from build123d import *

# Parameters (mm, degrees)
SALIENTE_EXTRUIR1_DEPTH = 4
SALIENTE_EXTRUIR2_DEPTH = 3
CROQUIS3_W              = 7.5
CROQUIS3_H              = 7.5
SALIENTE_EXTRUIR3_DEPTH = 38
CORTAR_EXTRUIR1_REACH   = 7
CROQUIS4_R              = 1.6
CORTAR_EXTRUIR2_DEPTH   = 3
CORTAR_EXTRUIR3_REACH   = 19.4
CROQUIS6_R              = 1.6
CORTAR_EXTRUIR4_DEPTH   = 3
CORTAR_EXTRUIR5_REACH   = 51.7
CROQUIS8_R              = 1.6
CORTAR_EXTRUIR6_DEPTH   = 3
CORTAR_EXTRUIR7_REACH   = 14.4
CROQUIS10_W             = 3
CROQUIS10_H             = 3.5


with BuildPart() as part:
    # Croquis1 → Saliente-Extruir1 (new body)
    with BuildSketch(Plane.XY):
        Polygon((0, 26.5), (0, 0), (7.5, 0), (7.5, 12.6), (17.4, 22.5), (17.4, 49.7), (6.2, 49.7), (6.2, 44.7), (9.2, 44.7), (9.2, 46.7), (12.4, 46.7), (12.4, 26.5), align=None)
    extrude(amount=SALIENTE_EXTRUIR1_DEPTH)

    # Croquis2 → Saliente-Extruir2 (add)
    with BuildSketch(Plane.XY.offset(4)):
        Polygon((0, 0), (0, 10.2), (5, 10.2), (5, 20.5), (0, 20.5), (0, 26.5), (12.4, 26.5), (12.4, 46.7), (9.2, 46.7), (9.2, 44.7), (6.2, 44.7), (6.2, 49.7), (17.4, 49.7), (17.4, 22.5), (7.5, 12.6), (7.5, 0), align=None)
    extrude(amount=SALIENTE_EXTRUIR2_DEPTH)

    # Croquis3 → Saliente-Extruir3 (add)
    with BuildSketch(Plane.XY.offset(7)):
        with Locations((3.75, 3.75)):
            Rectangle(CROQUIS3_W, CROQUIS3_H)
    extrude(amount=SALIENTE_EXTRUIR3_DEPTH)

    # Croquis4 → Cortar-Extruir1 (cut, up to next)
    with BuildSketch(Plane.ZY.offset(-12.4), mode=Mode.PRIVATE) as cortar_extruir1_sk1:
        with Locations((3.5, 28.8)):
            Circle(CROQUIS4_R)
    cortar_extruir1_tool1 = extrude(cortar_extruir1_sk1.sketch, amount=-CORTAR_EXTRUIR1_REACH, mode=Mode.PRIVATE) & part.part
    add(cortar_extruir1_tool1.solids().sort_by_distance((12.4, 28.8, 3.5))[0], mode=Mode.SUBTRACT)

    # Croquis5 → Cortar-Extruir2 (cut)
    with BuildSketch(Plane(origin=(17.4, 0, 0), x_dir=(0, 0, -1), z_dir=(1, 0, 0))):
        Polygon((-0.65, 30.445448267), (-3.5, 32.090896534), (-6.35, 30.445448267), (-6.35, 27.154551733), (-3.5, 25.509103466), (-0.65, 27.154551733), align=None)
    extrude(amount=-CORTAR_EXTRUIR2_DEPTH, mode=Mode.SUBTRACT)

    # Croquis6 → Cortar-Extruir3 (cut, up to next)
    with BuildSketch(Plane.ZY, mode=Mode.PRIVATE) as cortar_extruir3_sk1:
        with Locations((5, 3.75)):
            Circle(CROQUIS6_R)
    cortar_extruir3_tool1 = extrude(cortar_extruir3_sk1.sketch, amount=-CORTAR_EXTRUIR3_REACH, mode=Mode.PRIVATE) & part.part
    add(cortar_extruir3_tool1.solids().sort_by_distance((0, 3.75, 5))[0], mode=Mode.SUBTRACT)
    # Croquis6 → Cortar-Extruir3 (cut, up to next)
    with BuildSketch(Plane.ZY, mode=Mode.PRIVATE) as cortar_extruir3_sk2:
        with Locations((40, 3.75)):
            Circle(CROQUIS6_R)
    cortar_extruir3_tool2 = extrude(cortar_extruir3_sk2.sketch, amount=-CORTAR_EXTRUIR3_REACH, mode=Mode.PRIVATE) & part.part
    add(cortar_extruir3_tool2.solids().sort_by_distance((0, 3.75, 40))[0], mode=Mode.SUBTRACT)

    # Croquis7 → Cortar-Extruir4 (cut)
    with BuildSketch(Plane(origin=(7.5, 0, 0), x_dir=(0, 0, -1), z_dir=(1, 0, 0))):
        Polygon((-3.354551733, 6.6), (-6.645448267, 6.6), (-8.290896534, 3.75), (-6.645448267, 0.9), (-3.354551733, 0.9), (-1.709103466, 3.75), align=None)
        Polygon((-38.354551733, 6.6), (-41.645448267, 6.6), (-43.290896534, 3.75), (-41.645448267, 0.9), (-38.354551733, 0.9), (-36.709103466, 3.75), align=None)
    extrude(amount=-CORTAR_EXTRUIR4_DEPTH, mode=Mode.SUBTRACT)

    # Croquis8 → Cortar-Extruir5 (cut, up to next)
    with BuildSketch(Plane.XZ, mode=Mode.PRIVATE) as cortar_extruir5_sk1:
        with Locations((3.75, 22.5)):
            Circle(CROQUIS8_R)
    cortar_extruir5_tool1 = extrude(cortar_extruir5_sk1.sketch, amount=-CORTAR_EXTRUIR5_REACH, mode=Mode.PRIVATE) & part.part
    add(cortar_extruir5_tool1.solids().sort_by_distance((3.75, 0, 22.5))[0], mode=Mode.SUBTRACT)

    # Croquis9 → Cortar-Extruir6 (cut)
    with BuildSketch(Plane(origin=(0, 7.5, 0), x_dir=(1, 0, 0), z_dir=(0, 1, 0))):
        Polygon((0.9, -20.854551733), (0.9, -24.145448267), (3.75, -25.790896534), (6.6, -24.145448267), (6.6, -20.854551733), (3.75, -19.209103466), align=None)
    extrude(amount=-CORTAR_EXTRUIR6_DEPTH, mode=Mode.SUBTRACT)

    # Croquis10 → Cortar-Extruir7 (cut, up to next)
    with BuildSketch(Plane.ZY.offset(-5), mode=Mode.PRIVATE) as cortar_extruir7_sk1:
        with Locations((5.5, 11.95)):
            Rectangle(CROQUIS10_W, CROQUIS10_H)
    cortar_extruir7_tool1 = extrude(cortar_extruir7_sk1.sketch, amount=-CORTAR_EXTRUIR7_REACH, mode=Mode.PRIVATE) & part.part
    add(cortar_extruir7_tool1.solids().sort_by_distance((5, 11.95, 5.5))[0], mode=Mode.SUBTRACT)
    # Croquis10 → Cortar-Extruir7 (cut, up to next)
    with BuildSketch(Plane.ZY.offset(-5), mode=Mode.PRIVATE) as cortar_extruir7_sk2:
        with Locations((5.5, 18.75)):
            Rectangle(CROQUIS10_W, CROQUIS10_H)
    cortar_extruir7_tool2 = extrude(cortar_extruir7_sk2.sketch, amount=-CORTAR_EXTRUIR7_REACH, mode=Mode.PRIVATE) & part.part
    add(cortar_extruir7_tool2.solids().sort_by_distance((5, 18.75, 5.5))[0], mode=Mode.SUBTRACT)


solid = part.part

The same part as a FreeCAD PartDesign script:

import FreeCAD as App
import Part
import Sketcher

V = App.Vector
Q = App.Units.Quantity


def add_polygon(sketch, points):
    """Adds a closed chain of lines whose ends are joined by coincident constraints."""
    first, n = sketch.GeometryCount, len(points)
    for a, b in zip(points, points[1:] + points[:1]):
        sketch.addGeometry(Part.LineSegment(App.Vector(*a, 0), App.Vector(*b, 0)), False)
    for i in range(n):
        sketch.addConstraint(Sketcher.Constraint("Coincident", first + i, 2, first + (i + 1) % n, 1))

doc = App.newDocument("Part")
body = doc.addObject("PartDesign::Body", "Body")

# Sketch on XY plane
sketch1 = doc.addObject("Sketcher::SketchObject", "Sketch")
body.addObject(sketch1)
sketch1.AttachmentSupport = (doc.XY_Plane, [""])
sketch1.MapMode = "FlatFace"
add_polygon(sketch1, [(0, 26.5), (0, 0), (7.5, 0), (7.5, 12.6), (17.4, 22.5), (17.4, 49.7), (6.2, 49.7), (6.2, 44.7), (9.2, 44.7), (9.2, 46.7), (12.4, 46.7), (12.4, 26.5)])  # lines 0-11
sketch1.addConstraint([
    Sketcher.Constraint("Vertical", 0),
    Sketcher.Constraint("Horizontal", 1),
    Sketcher.Constraint("Vertical", 2),
    Sketcher.Constraint("Vertical", 4),
    Sketcher.Constraint("Horizontal", 5),
    Sketcher.Constraint("Vertical", 6),
    Sketcher.Constraint("Horizontal", 7),
    Sketcher.Constraint("Vertical", 8),
    Sketcher.Constraint("Horizontal", 9),
    Sketcher.Constraint("Vertical", 10),
    Sketcher.Constraint("Horizontal", 11),
    Sketcher.Constraint("Coincident", 0, 2, -1, 1),
    Sketcher.Constraint("DistanceX", 7, 1, 7, 2, 3.0),
    Sketcher.Constraint("DistanceY", 6, 2, 6, 1, 5.0),
    Sketcher.Constraint("DistanceY", 8, 1, 8, 2, 2.0),
    Sketcher.Constraint("Angle", 3, Q("45 deg")),
    Sketcher.Constraint("DistanceX", 1, 1, 1, 2, 7.5),
    Sketcher.Constraint("DistanceX", 5, 2, 5, 1, 11.2),
    Sketcher.Constraint("DistanceX", 9, 1, 9, 2, 3.2),
    Sketcher.Constraint("DistanceX", 11, 2, 11, 1, 12.4),
    Sketcher.Constraint("DistanceY", 0, 2, 0, 1, 26.5),
    Sketcher.Constraint("DistanceY", 2, 1, 2, 2, 12.6),
    Sketcher.Constraint("DistanceY", 4, 1, 4, 2, 27.2),
])
pad1 = doc.addObject("PartDesign::Pad", "Pad")
body.addObject(pad1)
pad1.Profile = sketch1
pad1.Length = 4

# Sketch on XY plane
sketch2 = doc.addObject("Sketcher::SketchObject", "Sketch001")
body.addObject(sketch2)
sketch2.AttachmentSupport = (doc.XY_Plane, [""])
sketch2.MapMode = "FlatFace"
sketch2.AttachmentOffset = App.Placement(V(0, 0, 4), App.Rotation())
add_polygon(sketch2, [(0, 10.2), (0, 0), (7.5, 0), (7.5, 12.6), (17.4, 22.5), (17.4, 49.7), (6.2, 49.7), (6.2, 44.7), (9.2, 44.7), (9.2, 46.7), (12.4, 46.7), (12.4, 26.5), (0, 26.5), (0, 20.5), (5, 20.5), (5, 10.2)])  # lines 0-15
sketch2.addConstraint([
    Sketcher.Constraint("Vertical", 0),
    Sketcher.Constraint("Horizontal", 1),
    Sketcher.Constraint("Vertical", 2),
    Sketcher.Constraint("Vertical", 4),
    Sketcher.Constraint("Horizontal", 5),
    Sketcher.Constraint("Vertical", 6),
    Sketcher.Constraint("Horizontal", 7),
    Sketcher.Constraint("Vertical", 8),
    Sketcher.Constraint("Horizontal", 9),
    Sketcher.Constraint("Vertical", 10),
    Sketcher.Constraint("Horizontal", 11),
    Sketcher.Constraint("Vertical", 12),
    Sketcher.Constraint("Horizontal", 13),
    Sketcher.Constraint("Vertical", 14),
    Sketcher.Constraint("Horizontal", 15),
    Sketcher.Constraint("Coincident", 0, 2, -1, 1),
    Sketcher.Constraint("PointOnObject", 11, 2, -2),
    Sketcher.Constraint("Equal", 15, 6),
    Sketcher.Constraint("DistanceX", 7, 1, 7, 2, 3.0),
    Sketcher.Constraint("DistanceX", 13, 1, 13, 2, 5.0),
    Sketcher.Constraint("DistanceY", 8, 1, 8, 2, 2.0),
    Sketcher.Constraint("DistanceY", 12, 2, 12, 1, 6.0),
    Sketcher.Constraint("Angle", 3, Q("45 deg")),
    Sketcher.Constraint("DistanceX", 1, 1, 1, 2, 7.5),
    Sketcher.Constraint("DistanceX", 5, 2, 5, 1, 11.2),
    Sketcher.Constraint("DistanceX", 9, 1, 9, 2, 3.2),
    Sketcher.Constraint("DistanceX", 11, 2, 11, 1, 12.4),
    Sketcher.Constraint("DistanceY", 0, 2, 0, 1, 10.2),
    Sketcher.Constraint("DistanceY", 2, 1, 2, 2, 12.6),
    Sketcher.Constraint("DistanceY", 4, 1, 4, 2, 27.2),
    Sketcher.Constraint("DistanceY", 10, 2, 10, 1, 20.2),
])
pad2 = doc.addObject("PartDesign::Pad", "Pad001")
body.addObject(pad2)
pad2.Profile = sketch2
pad2.Length = 3

# Sketch on XY plane
sketch3 = doc.addObject("Sketcher::SketchObject", "Sketch002")
body.addObject(sketch3)
sketch3.AttachmentSupport = (doc.XY_Plane, [""])
sketch3.MapMode = "FlatFace"
sketch3.AttachmentOffset = App.Placement(V(0, 0, 7), App.Rotation())
add_polygon(sketch3, [(0, 8), (0, 0), (8, 0), (8, 8)])  # lines 0-3
sketch3.addConstraint([
    Sketcher.Constraint("Vertical", 0),
    Sketcher.Constraint("Horizontal", 1),
    Sketcher.Constraint("Vertical", 2),
    Sketcher.Constraint("Horizontal", 3),
    Sketcher.Constraint("Coincident", 0, 2, -1, 1),
    Sketcher.Constraint("Equal", 3, 0),
    Sketcher.Constraint("DistanceX", 1, 1, 1, 2, 7.5),
])
pad3 = doc.addObject("PartDesign::Pad", "Pad002")
body.addObject(pad3)
pad3.Profile = sketch3
pad3.Length = 38

# Sketch on YZ plane
sketch4 = doc.addObject("Sketcher::SketchObject", "Sketch003")
body.addObject(sketch4)
sketch4.AttachmentSupport = (doc.YZ_Plane, [""])
sketch4.MapMode = "FlatFace"
sketch4.AttachmentOffset = App.Placement(V(0, 0, 12.4), App.Rotation())
sketch4.addGeometry(Part.Circle(V(28.8, 3.5, 0), V(0, 0, 1), 1.6), False)
sketch4.addConstraint([
    Sketcher.Constraint("Diameter", 0, 3.2),
    Sketcher.Constraint("DistanceX", -1, 1, 0, 3, 28.8),
    Sketcher.Constraint("DistanceY", -1, 1, 0, 3, 3.5),
])
pocket1 = doc.addObject("PartDesign::Pocket", "Pocket")
body.addObject(pocket1)
pocket1.Profile = sketch4
pocket1.Type = "UpToFirst"
pocket1.Reversed = True

# Sketch on YZ plane
sketch5 = doc.addObject("Sketcher::SketchObject", "Sketch004")
body.addObject(sketch5)
sketch5.AttachmentSupport = (doc.YZ_Plane, [""])
sketch5.MapMode = "FlatFace"
sketch5.AttachmentOffset = App.Placement(V(0, 0, 17.4), App.Rotation())
add_polygon(sketch5, [(30.4, 0.7), (32.1, 3.5), (30.4, 6.3), (27.2, 6.3), (25.5, 3.5), (27.2, 0.7)])  # lines 0-5
sketch5.addConstraint([
    Sketcher.Constraint("Horizontal", 2),
    Sketcher.Constraint("Horizontal", 5),
    Sketcher.Constraint("Parallel", 0, 3),
    Sketcher.Constraint("Parallel", 1, 4),
    Sketcher.Constraint("Horizontal", 0, 2, 3, 2),
    Sketcher.Constraint("Vertical", 2, 2, 4, 2),
    Sketcher.Constraint("Vertical", 1, 2, 5, 2),
    Sketcher.Constraint("Angle", 0, Q("60 deg")),
    Sketcher.Constraint("DistanceY", -1, 1, 0, 2, 3.5),
    Sketcher.Constraint("DistanceY", 4, 2, 2, 2, 5.7),
    Sketcher.Constraint("DistanceX", 2, 2, 2, 1, 3.290897),
    Sketcher.Constraint("DistanceX", -1, 1, 1, 2, 30.445448),
])
pocket2 = doc.addObject("PartDesign::Pocket", "Pocket001")
body.addObject(pocket2)
pocket2.Profile = sketch5
pocket2.Length = 3

# Sketch on YZ plane
sketch6 = doc.addObject("Sketcher::SketchObject", "Sketch005")
body.addObject(sketch6)
sketch6.AttachmentSupport = (doc.YZ_Plane, [""])
sketch6.MapMode = "FlatFace"
sketch6.addGeometry(Part.Circle(V(3.8, 5, 0), V(0, 0, 1), 1.6), False)
sketch6.addConstraint([
    Sketcher.Constraint("Diameter", 0, 3.2),
    Sketcher.Constraint("DistanceY", -1, 1, 0, 3, 5.0),
    Sketcher.Constraint("DistanceX", -1, 1, 0, 3, 3.75),
])
pocket3 = doc.addObject("PartDesign::Pocket", "Pocket002")
body.addObject(pocket3)
pocket3.Profile = sketch6
pocket3.Type = "UpToFirst"
pocket3.Reversed = True

# Sketch on YZ plane
sketch7 = doc.addObject("Sketcher::SketchObject", "Sketch006")
body.addObject(sketch7)
sketch7.AttachmentSupport = (doc.YZ_Plane, [""])
sketch7.MapMode = "FlatFace"
sketch7.addGeometry(Part.Circle(V(3.8, 40, 0), V(0, 0, 1), 1.6), False)
sketch7.addConstraint([
    Sketcher.Constraint("Diameter", 0, 3.2),
    Sketcher.Constraint("DistanceY", -1, 1, 0, 3, 40.0),
    Sketcher.Constraint("DistanceX", -1, 1, 0, 3, 3.75),
])
pocket4 = doc.addObject("PartDesign::Pocket", "Pocket003")
body.addObject(pocket4)
pocket4.Profile = sketch7
pocket4.Type = "UpToFirst"
pocket4.Reversed = True

# Sketch on YZ plane
sketch8 = doc.addObject("Sketcher::SketchObject", "Sketch007")
body.addObject(sketch8)
sketch8.AttachmentSupport = (doc.YZ_Plane, [""])
sketch8.MapMode = "FlatFace"
sketch8.AttachmentOffset = App.Placement(V(0, 0, 7.5), App.Rotation())
add_polygon(sketch8, [(6.6, 3.4), (6.6, 6.6), (3.8, 8.3), (0.9, 6.6), (0.9, 3.4), (3.8, 1.7)])  # lines 0-5
add_polygon(sketch8, [(6.6, 38.4), (6.6, 41.6), (3.8, 43.3), (0.9, 41.6), (0.9, 38.4), (3.8, 36.7)])  # lines 6-11
sketch8.addConstraint([
    Sketcher.Constraint("Vertical", 0),
    Sketcher.Constraint("Vertical", 3),
    Sketcher.Constraint("Vertical", 6),
    Sketcher.Constraint("Vertical", 9),
    Sketcher.Constraint("Parallel", 1, 4),
    Sketcher.Constraint("Parallel", 2, 5),
    Sketcher.Constraint("Parallel", 4, 7),
    Sketcher.Constraint("Parallel", 5, 8),
    Sketcher.Constraint("Parallel", 7, 10),
    Sketcher.Constraint("Parallel", 8, 11),
    Sketcher.Constraint("Horizontal", 0, 2, 2, 2),
    Sketcher.Constraint("Horizontal", 3, 2, 5, 2),
    Sketcher.Constraint("Horizontal", 6, 2, 8, 2),
    Sketcher.Constraint("Horizontal", 9, 2, 11, 2),
    Sketcher.Constraint("Vertical", 1, 2, 4, 2),
    Sketcher.Constraint("Vertical", 5, 2, 6, 2),
    Sketcher.Constraint("Vertical", 4, 2, 7, 2),
    Sketcher.Constraint("Equal", 3, 6),
    Sketcher.Constraint("Angle", 1, Q("150 deg")),
    Sketcher.Constraint("DistanceY", 0, 2, 6, 2, 35.0),
    Sketcher.Constraint("DistanceX", -1, 1, 0, 2, 6.6),
    Sketcher.Constraint("DistanceX", -1, 1, 2, 2, 0.9),
    Sketcher.Constraint("DistanceY", 0, 1, 0, 2, 3.290897),
    Sketcher.Constraint("DistanceY", -1, 1, 0, 2, 6.645448),
])
pocket5 = doc.addObject("PartDesign::Pocket", "Pocket004")
body.addObject(pocket5)
pocket5.Profile = sketch8
pocket5.Length = 3

# Sketch on XZ plane
sketch9 = doc.addObject("Sketcher::SketchObject", "Sketch008")
body.addObject(sketch9)
sketch9.AttachmentSupport = (doc.XZ_Plane, [""])
sketch9.MapMode = "FlatFace"
sketch9.addGeometry(Part.Circle(V(3.8, 22.5, 0), V(0, 0, 1), 1.6), False)
sketch9.addConstraint([
    Sketcher.Constraint("Diameter", 0, 3.2),
    Sketcher.Constraint("DistanceY", -1, 1, 0, 3, 22.5),
    Sketcher.Constraint("DistanceX", -1, 1, 0, 3, 3.75),
])
pocket6 = doc.addObject("PartDesign::Pocket", "Pocket005")
body.addObject(pocket6)
pocket6.Profile = sketch9
pocket6.Type = "UpToFirst"

# Sketch on XZ plane
sketch10 = doc.addObject("Sketcher::SketchObject", "Sketch009")
body.addObject(sketch10)
sketch10.AttachmentSupport = (doc.XZ_Plane, [""])
sketch10.MapMode = "FlatFace"
sketch10.AttachmentOffset = App.Placement(V(0, 0, -7.5), App.Rotation())
add_polygon(sketch10, [(0.9, 20.9), (0.9, 24.1), (3.8, 25.8), (6.6, 24.1), (6.6, 20.9), (3.8, 19.2)])  # lines 0-5
sketch10.addConstraint([
    Sketcher.Constraint("Vertical", 0),
    Sketcher.Constraint("Vertical", 3),
    Sketcher.Constraint("Parallel", 1, 4),
    Sketcher.Constraint("Parallel", 2, 5),
    Sketcher.Constraint("Horizontal", 0, 2, 2, 2),
    Sketcher.Constraint("Horizontal", 3, 2, 5, 2),
    Sketcher.Constraint("Vertical", 1, 2, 4, 2),
    Sketcher.Constraint("Angle", 1, Q("30 deg")),
    Sketcher.Constraint("DistanceX", -1, 1, 0, 2, 0.9),
    Sketcher.Constraint("DistanceX", -1, 1, 2, 2, 6.6),
    Sketcher.Constraint("DistanceY", 0, 1, 0, 2, 3.290897),
    Sketcher.Constraint("DistanceY", -1, 1, 0, 2, 24.145448),
])
pocket7 = doc.addObject("PartDesign::Pocket", "Pocket006")
body.addObject(pocket7)
pocket7.Profile = sketch10
pocket7.Length = 3
pocket7.Reversed = True

# Sketch on YZ plane
sketch11 = doc.addObject("Sketcher::SketchObject", "Sketch010")
body.addObject(sketch11)
sketch11.AttachmentSupport = (doc.YZ_Plane, [""])
sketch11.MapMode = "FlatFace"
sketch11.AttachmentOffset = App.Placement(V(0, 0, 5), App.Rotation())
add_polygon(sketch11, [(13.7, 4), (10.2, 4), (10.2, 7), (13.7, 7)])  # lines 0-3
sketch11.addConstraint([
    Sketcher.Constraint("Horizontal", 0),
    Sketcher.Constraint("Vertical", 1),
    Sketcher.Constraint("Horizontal", 2),
    Sketcher.Constraint("Vertical", 3),
    Sketcher.Constraint("DistanceY", 1, 1, 1, 2, 3.0),
    Sketcher.Constraint("DistanceX", 0, 2, 0, 1, 3.5),
    Sketcher.Constraint("DistanceY", -1, 1, 0, 2, 4.0),
    Sketcher.Constraint("DistanceX", -1, 1, 0, 2, 10.2),
])
pocket8 = doc.addObject("PartDesign::Pocket", "Pocket007")
body.addObject(pocket8)
pocket8.Profile = sketch11
pocket8.Length = 3.6
pocket8.Reversed = True

# Sketch on YZ plane
sketch12 = doc.addObject("Sketcher::SketchObject", "Sketch011")
body.addObject(sketch12)
sketch12.AttachmentSupport = (doc.YZ_Plane, [""])
sketch12.MapMode = "FlatFace"
sketch12.AttachmentOffset = App.Placement(V(0, 0, 5), App.Rotation())
add_polygon(sketch12, [(20.5, 4), (17, 4), (17, 7), (20.5, 7)])  # lines 0-3
sketch12.addConstraint([
    Sketcher.Constraint("Horizontal", 0),
    Sketcher.Constraint("Vertical", 1),
    Sketcher.Constraint("Horizontal", 2),
    Sketcher.Constraint("Vertical", 3),
    Sketcher.Constraint("DistanceY", 1, 1, 1, 2, 3.0),
    Sketcher.Constraint("DistanceX", 0, 2, 0, 1, 3.5),
    Sketcher.Constraint("DistanceX", -1, 1, 0, 2, 17.0),
    Sketcher.Constraint("DistanceY", -1, 1, 0, 2, 4.0),
])
pocket9 = doc.addObject("PartDesign::Pocket", "Pocket008")
body.addObject(pocket9)
pocket9.Profile = sketch12
pocket9.Type = "UpToFirst"
pocket9.Reversed = True

doc.recompute()
